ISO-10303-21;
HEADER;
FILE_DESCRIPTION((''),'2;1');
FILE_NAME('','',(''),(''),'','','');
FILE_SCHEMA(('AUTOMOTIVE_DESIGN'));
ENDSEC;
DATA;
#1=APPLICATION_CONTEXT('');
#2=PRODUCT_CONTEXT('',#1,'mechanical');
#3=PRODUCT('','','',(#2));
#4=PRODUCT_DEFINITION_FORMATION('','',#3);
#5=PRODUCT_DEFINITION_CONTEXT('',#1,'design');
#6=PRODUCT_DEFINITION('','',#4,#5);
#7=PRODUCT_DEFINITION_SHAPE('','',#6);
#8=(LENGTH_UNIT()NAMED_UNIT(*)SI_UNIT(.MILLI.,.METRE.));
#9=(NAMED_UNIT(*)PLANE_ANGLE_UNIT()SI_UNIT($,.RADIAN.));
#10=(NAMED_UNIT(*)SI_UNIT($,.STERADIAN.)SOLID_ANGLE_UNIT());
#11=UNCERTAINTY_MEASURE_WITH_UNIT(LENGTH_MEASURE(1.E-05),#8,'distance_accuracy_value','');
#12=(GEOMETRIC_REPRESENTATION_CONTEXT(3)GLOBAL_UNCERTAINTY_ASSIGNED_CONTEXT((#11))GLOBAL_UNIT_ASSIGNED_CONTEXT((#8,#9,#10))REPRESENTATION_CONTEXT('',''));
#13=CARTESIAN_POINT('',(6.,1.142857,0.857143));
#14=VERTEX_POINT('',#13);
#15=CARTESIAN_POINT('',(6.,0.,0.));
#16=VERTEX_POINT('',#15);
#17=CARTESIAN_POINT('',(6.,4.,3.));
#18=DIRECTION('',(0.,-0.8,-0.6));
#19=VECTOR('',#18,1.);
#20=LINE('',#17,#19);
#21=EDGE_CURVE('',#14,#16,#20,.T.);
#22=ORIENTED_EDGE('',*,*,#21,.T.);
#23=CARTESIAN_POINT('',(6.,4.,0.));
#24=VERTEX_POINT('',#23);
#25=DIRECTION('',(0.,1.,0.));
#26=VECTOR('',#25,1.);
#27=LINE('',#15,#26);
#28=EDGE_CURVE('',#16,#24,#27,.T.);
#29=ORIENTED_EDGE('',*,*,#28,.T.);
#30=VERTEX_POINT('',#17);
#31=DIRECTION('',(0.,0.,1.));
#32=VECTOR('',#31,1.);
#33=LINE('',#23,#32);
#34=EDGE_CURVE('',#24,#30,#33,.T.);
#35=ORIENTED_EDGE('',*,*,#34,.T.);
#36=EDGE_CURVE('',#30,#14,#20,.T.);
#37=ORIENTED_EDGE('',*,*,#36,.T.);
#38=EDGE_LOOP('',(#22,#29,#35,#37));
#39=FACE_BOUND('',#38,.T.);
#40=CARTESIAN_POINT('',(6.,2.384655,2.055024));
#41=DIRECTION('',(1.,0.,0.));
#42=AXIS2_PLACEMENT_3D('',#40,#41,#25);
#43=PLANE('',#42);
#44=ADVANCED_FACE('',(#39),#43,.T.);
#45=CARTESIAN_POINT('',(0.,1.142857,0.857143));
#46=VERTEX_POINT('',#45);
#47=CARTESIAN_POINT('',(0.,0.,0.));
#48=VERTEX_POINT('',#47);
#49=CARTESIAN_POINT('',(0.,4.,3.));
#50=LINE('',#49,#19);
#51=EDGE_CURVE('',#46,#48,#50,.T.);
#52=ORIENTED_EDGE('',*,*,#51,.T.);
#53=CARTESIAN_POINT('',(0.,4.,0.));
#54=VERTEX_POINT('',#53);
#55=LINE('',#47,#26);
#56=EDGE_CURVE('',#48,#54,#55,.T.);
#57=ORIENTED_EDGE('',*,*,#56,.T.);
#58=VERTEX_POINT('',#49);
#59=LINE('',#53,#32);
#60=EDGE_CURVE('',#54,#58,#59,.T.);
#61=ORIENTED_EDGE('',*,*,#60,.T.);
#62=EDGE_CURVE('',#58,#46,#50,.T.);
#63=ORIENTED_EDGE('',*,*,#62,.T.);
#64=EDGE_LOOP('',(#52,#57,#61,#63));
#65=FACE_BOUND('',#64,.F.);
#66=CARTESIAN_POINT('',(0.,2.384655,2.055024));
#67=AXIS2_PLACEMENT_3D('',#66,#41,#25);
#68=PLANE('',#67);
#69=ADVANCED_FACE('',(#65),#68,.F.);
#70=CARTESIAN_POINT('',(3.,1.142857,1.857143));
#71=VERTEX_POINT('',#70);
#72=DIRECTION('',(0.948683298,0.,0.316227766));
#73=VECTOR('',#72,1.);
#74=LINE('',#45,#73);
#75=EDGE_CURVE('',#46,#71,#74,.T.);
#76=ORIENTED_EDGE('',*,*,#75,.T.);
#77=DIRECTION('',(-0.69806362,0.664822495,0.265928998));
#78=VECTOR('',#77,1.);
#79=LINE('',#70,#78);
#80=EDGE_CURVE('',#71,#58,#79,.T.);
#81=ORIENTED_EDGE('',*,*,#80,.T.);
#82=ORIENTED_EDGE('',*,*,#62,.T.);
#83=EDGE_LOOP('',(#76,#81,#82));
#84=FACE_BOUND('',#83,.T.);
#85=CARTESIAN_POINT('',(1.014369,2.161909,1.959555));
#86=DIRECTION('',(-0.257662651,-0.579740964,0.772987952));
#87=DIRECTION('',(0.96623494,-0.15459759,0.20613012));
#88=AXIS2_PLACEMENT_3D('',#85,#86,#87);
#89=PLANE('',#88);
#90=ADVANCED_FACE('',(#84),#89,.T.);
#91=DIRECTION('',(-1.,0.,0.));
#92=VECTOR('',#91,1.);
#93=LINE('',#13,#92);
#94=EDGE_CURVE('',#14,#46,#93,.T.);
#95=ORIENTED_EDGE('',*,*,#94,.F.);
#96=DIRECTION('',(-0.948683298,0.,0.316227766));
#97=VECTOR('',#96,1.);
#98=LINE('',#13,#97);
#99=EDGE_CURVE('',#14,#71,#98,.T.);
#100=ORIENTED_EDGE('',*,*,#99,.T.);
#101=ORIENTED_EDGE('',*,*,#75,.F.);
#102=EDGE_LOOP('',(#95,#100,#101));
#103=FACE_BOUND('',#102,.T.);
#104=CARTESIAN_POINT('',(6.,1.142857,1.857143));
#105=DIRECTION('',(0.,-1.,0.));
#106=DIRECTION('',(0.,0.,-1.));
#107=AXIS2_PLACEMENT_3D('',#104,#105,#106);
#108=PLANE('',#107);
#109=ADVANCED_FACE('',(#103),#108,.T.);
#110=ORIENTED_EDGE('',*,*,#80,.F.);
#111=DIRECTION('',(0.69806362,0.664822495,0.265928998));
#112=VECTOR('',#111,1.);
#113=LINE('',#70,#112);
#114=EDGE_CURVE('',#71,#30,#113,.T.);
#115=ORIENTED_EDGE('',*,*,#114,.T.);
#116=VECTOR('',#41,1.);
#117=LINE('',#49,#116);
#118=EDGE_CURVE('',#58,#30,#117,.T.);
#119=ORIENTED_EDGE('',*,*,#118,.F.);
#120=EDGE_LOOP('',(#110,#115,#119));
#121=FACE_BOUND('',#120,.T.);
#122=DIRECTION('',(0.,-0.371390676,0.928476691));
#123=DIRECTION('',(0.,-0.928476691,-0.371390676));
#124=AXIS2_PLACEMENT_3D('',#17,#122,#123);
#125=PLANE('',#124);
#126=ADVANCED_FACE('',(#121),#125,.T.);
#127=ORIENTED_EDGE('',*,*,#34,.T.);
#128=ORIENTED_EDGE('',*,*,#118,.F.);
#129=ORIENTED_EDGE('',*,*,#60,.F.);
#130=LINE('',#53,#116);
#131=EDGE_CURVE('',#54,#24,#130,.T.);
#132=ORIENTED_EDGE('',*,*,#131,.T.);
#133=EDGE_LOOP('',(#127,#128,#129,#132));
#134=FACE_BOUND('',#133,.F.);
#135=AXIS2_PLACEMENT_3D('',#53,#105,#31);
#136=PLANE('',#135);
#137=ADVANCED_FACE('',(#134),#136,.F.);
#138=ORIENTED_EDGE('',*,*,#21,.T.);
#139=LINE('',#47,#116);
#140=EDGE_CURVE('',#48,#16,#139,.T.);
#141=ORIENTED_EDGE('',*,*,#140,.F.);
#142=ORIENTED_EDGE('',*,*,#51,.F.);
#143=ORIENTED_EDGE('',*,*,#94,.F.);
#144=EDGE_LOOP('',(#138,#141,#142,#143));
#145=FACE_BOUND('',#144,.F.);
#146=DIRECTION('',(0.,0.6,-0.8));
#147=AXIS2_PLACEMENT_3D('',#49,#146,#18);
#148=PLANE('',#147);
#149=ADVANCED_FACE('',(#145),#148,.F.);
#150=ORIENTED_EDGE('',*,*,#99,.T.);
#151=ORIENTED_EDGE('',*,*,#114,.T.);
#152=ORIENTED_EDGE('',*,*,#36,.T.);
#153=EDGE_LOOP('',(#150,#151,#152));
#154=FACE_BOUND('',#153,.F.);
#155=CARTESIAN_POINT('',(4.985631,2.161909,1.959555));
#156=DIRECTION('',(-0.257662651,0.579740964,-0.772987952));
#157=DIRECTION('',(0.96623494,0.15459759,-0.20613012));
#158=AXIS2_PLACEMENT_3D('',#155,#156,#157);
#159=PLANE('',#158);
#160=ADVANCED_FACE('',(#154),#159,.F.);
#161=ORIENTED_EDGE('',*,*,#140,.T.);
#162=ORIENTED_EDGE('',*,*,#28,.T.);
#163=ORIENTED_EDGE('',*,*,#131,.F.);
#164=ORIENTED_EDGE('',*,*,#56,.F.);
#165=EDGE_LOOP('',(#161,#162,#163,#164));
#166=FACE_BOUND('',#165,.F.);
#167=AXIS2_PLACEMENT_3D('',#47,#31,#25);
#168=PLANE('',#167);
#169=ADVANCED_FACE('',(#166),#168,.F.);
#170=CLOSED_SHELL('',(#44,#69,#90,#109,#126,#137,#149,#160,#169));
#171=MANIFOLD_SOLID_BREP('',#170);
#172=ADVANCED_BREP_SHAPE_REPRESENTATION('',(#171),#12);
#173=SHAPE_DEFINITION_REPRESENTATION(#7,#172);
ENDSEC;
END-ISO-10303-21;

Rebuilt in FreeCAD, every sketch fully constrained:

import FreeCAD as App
import Part
import Sketcher

V = App.Vector


def add_polygon(sketch, points):
    """Adds a closed chain of lines whose ends are joined by coincident constraints."""
    first, n = sketch.GeometryCount, len(points)
    for a, b in zip(points, points[1:] + points[:1]):
        sketch.addGeometry(Part.LineSegment(App.Vector(*a, 0), App.Vector(*b, 0)), False)
    for i in range(n):
        sketch.addConstraint(Sketcher.Constraint("Coincident", first + i, 2, first + (i + 1) % n, 1))

doc = App.newDocument("Part")
body = doc.addObject("PartDesign::Body", "Body")

# Sketch on YZ plane
sketch1 = body.newObject("Sketcher::SketchObject", "Sketch")
sketch1.AttachmentSupport = (doc.getObject("YZ_Plane"), [""])
sketch1.MapMode = "FlatFace"
add_polygon(sketch1, [(4, 3), (0, 0), (4, 0)])  # lines 0-2
sketch1.addConstraint([
    Sketcher.Constraint("Horizontal", 1),
    Sketcher.Constraint("Vertical", 2),
    Sketcher.Constraint("Coincident", 0, 2, -1, 1),
    Sketcher.Constraint("DistanceX", 1, 1, 1, 2, 4.0),
    Sketcher.Constraint("DistanceY", 2, 1, 2, 2, 3.0),
])
pad1 = body.newObject("PartDesign::Pad", "Pad")
pad1.Profile = sketch1
pad1.Length = 6

# Sketch on YZ plane
sketch2 = body.newObject("Sketcher::SketchObject", "Sketch001")
sketch2.AttachmentSupport = (doc.getObject("YZ_Plane"), [""])
sketch2.MapMode = "FlatFace"
sketch2.AttachmentOffset = App.Placement(V(0, 0, 6), App.Rotation())
add_polygon(sketch2, [(1.142857, 1.857143), (1.142857, 0.857143), (4, 3)])  # lines 0-2
sketch2.addConstraint([
    Sketcher.Constraint("Vertical", 0),
    Sketcher.Constraint("DistanceY", 0, 2, 0, 1, 1.0),
    Sketcher.Constraint("DistanceX", -1, 1, 1, 2, 4.0),
    Sketcher.Constraint("DistanceY", -1, 1, 1, 2, 3.0),
    Sketcher.Constraint("Distance", 1, 3.571429),
    Sketcher.Constraint("Distance", 2, 3.077237),
])
pad2 = body.newObject("PartDesign::Pad", "Pad001")
pad2.Profile = sketch2
pad2.Length = 6
pad2.Reversed = True

# Sketch on an angled plane
sketch3 = body.newObject("Sketcher::SketchObject", "Sketch002")
sketch3.Placement = App.Placement(V(0.39834, -0.896266, 1.195021), App.Rotation(V(0.96623494, 0.15459759, -0.20613012), V(0, -0.800000001, -0.6), V(-0.257662651, 0.579740964, -0.772987952), "ZXY"))
add_polygon(sketch3, [(5.79741, -1.428571), (2.692575, -2.028571), (5.79741, -5)])  # lines 0-2
sketch3.addConstraint([
    Sketcher.Constraint("Vertical", 2),
    Sketcher.Constraint("DistanceY", 1, 2, -1, 1, 5.0),
    Sketcher.Constraint("DistanceY", 0, 2, 2, 2, 0.6),
    Sketcher.Constraint("DistanceY", 2, 1, 2, 2, 3.571429),
    Sketcher.Constraint("DistanceX", -1, 1, 1, 2, 5.79741),
    Sketcher.Constraint("Distance", 0, 3.162278),
])
pocket1 = body.newObject("PartDesign::Pocket", "Pocket")
pocket1.Profile = sketch3
pocket1.Length = 25

# Sketch on an angled plane
sketch4 = body.newObject("Sketcher::SketchObject", "Sketch003")
sketch4.Placement = App.Placement(V(0, 0, 0), App.Rotation(V(0.96623494, -0.15459759, 0.20613012), V(0, 0.800000001, 0.6), V(-0.257662651, -0.579740964, 0.772987952), "ZXY"))
add_polygon(sketch4, [(3.104835, 2.028571), (0, 5), (0, 1.428571)])  # lines 0-2
sketch4.addConstraint([
    Sketcher.Constraint("Vertical", 1),
    Sketcher.Constraint("PointOnObject", 0, 2, -2),
    Sketcher.Constraint("DistanceY", -1, 1, 0, 2, 5.0),
    Sketcher.Constraint("DistanceY", 1, 2, 2, 2, 0.6),
    Sketcher.Constraint("DistanceY", 1, 2, 1, 1, 3.571429),
    Sketcher.Constraint("Distance", 0, 4.297603),
])
pocket2 = body.newObject("PartDesign::Pocket", "Pocket001")
pocket2.Profile = sketch4
pocket2.Length = 25
pocket2.Reversed = True

doc.recompute()
